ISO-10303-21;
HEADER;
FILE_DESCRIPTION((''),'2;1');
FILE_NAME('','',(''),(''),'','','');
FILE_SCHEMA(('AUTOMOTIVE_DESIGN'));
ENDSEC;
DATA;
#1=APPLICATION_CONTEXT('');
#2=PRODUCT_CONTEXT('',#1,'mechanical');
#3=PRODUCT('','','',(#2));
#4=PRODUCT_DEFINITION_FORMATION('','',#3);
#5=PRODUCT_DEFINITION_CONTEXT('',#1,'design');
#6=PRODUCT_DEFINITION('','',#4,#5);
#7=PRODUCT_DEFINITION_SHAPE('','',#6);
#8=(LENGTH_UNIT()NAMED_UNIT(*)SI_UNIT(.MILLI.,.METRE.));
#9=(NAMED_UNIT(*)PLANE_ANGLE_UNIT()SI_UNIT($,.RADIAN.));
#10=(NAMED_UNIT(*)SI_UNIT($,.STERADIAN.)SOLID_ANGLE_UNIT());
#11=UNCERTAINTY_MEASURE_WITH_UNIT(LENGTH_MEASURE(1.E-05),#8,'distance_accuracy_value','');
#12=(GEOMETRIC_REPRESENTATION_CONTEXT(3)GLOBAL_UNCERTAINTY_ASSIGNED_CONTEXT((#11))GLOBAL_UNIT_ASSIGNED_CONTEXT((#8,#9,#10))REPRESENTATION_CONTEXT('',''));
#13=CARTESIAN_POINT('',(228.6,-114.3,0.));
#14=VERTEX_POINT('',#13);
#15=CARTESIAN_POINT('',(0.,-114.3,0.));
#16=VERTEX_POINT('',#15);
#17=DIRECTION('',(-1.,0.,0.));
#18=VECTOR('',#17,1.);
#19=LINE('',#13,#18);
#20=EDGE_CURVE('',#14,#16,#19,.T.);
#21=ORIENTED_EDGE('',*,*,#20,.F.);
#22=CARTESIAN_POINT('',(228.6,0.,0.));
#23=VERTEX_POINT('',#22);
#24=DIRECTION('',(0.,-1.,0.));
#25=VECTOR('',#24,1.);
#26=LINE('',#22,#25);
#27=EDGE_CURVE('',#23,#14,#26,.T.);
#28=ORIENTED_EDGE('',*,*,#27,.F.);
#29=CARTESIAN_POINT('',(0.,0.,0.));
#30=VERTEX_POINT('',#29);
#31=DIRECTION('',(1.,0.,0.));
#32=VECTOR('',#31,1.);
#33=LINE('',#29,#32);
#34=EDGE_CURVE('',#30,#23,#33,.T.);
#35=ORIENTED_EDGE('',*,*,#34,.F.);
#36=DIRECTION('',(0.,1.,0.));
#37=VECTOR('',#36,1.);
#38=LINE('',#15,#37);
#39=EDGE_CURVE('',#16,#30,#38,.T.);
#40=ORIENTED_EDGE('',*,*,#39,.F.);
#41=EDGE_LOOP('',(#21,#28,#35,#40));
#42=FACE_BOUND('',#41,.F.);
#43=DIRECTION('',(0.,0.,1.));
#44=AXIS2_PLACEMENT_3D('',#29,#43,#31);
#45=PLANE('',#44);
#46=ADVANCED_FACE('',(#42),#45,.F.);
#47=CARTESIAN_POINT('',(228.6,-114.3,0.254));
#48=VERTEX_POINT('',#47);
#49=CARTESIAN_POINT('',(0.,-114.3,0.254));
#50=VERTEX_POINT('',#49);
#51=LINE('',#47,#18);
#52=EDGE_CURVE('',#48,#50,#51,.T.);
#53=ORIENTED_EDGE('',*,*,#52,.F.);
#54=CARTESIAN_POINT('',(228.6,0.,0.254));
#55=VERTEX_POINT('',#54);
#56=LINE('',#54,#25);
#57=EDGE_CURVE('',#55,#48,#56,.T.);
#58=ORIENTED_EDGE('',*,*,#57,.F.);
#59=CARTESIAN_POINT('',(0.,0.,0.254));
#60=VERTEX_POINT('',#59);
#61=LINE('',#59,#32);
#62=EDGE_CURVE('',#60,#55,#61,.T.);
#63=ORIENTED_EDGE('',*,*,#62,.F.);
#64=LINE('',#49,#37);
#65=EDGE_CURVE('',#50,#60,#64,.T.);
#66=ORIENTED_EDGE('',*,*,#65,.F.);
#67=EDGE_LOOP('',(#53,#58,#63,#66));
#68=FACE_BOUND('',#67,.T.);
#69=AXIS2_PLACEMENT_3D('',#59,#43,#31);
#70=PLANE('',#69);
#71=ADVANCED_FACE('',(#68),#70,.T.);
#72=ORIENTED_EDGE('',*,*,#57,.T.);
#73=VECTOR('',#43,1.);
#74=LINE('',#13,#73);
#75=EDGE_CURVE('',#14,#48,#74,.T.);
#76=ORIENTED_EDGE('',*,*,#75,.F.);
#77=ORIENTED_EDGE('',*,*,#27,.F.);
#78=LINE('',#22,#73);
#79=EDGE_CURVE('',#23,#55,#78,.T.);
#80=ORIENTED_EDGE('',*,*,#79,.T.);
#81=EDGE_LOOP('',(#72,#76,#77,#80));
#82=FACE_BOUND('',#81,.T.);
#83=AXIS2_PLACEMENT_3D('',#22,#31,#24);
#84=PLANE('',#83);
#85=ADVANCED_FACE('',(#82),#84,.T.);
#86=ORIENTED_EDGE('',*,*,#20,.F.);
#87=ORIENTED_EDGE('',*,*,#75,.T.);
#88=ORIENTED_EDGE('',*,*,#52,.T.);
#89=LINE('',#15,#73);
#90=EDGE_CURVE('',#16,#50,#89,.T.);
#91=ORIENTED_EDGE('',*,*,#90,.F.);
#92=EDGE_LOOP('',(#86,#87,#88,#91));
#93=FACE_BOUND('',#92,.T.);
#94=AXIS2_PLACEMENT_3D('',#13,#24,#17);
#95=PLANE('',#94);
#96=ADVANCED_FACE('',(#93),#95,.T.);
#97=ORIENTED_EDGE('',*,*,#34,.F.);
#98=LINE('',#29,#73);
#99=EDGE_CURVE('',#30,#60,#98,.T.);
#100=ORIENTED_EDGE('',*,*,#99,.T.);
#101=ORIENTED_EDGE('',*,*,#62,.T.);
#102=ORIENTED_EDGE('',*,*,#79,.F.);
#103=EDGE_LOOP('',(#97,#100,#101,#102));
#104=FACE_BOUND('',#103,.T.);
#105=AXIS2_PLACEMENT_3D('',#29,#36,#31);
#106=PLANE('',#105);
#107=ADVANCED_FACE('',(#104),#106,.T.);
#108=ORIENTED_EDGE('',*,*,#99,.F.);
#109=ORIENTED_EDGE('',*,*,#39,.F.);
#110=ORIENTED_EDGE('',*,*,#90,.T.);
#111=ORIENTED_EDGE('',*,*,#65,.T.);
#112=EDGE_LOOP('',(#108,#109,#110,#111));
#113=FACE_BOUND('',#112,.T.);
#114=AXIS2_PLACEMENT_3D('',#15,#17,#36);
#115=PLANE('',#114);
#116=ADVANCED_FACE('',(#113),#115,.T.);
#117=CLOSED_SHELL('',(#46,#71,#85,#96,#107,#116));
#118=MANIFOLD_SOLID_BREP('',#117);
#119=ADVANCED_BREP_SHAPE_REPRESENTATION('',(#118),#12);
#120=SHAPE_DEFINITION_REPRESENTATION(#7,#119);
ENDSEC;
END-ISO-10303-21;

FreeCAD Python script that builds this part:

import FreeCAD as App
import Part
import Sketcher

V = App.Vector
Q = App.Units.Quantity

doc = App.newDocument("Part")
params = doc.addObject("Spreadsheet::Sheet", "Params")
for row, (alias, value) in enumerate([
    ("sketch1_width", "9 in"),
    ("sketch1_height", "4.5 in"),
    ("pad1_length", "0.01 in"),
], start=1):
    params.set(f"A{row}", alias)
    params.set(f"B{row}", "=" + value)
    params.setAlias(f"B{row}", alias)

body = doc.addObject("PartDesign::Body", "Body")

# Sketch on XY plane
sketch1 = body.newObject("Sketcher::SketchObject", "Sketch")
sketch1.AttachmentSupport = (doc.getObject("XY_Plane"), [""])
sketch1.MapMode = "FlatFace"
sketch1.addGeometry([
    Part.LineSegment(V(229, 0, 0), V(0, 0, 0)),
    Part.LineSegment(V(0, 0, 0), V(0, -114, 0)),
    Part.LineSegment(V(0, -114, 0), V(229, -114, 0)),
    Part.LineSegment(V(229, -114, 0), V(229, 0, 0)),
], False)
sketch1.addConstraint([
    Sketcher.Constraint("Coincident", 0, 2, 1, 1),
    Sketcher.Constraint("Coincident", 1, 2, 2, 1),
    Sketcher.Constraint("Coincident", 2, 2, 3, 1),
    Sketcher.Constraint("Coincident", 3, 2, 0, 1),
    Sketcher.Constraint("Horizontal", 0),
    Sketcher.Constraint("Vertical", 1),
    Sketcher.Constraint("Horizontal", 2),
    Sketcher.Constraint("Vertical", 3),
    Sketcher.Constraint("Coincident", 0, 2, -1, 1),
    Sketcher.Constraint("DistanceX", 0, 2, 0, 1, Q("9 in")),
    Sketcher.Constraint("DistanceY", 1, 2, 1, 1, Q("4.5 in")),
])
sketch1.setExpression("Constraints[9]", "Params.sketch1_width")
sketch1.setExpression("Constraints[10]", "Params.sketch1_height")
pad1 = body.newObject("PartDesign::Pad", "Pad")
pad1.Profile = sketch1
pad1.setExpression("Length", "Params.pad1_length")

doc.recompute()
